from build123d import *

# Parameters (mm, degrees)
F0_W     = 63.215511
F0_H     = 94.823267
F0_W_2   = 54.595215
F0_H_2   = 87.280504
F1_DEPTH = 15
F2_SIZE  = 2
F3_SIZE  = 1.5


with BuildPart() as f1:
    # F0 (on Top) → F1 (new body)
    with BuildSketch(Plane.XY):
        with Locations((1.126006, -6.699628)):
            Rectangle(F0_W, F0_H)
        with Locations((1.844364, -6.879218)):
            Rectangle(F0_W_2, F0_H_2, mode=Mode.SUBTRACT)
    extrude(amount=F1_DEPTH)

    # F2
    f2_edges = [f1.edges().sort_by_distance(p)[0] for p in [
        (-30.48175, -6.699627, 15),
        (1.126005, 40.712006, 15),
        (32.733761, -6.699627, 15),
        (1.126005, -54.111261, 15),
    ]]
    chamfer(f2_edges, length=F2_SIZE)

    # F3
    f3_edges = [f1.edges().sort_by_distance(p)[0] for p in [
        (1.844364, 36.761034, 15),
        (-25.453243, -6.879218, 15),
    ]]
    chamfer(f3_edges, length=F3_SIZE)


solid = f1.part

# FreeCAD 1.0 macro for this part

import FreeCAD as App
import Part
import Sketcher


def edges_at(feature, points):
    """Names of the edges that pass closest to the given points."""
    edges = feature.Shape.Edges
    near = lambda p: min(range(len(edges)), key=lambda i: edges[i].distToShape(Part.Vertex(*p))[0])
    return sorted({f"Edge{near(p) + 1}" for p in points})


def add_polygon(sketch, points):
    """Adds a closed chain of lines whose ends are joined by coincident constraints."""
    first, n = sketch.GeometryCount, len(points)
    for a, b in zip(points, points[1:] + points[:1]):
        sketch.addGeometry(Part.LineSegment(App.Vector(*a, 0), App.Vector(*b, 0)), False)
    for i in range(n):
        sketch.addConstraint(Sketcher.Constraint("Coincident", first + i, 2, first + (i + 1) % n, 1))

doc = App.newDocument("Part")
body = doc.addObject("PartDesign::Body", "Body")

sketch1 = doc.addObject("Sketcher::SketchObject", "Sketch")
body.addObject(sketch1)
sketch1.AttachmentSupport = (doc.XY_Plane, [""])
sketch1.MapMode = "FlatFace"
add_polygon(sketch1, [(-30, 41), (-30, -54), (33, -54), (33, 41)])
add_polygon(sketch1, [(29, -51), (-25, -51), (-25, 37), (29, 37)])
sketch1.addConstraint(Sketcher.Constraint("Vertical", 0))
sketch1.addConstraint(Sketcher.Constraint("Horizontal", 1))
sketch1.addConstraint(Sketcher.Constraint("Vertical", 2))
sketch1.addConstraint(Sketcher.Constraint("Horizontal", 3))
sketch1.addConstraint(Sketcher.Constraint("Horizontal", 4))
sketch1.addConstraint(Sketcher.Constraint("Vertical", 5))
sketch1.addConstraint(Sketcher.Constraint("Horizontal", 6))
sketch1.addConstraint(Sketcher.Constraint("Vertical", 7))
sketch1.addConstraint(Sketcher.Constraint("DistanceX", 1, 1, 1, 2, 63.215511))
sketch1.addConstraint(Sketcher.Constraint("DistanceX", 4, 2, 4, 1, 54.595215))
sketch1.addConstraint(Sketcher.Constraint("DistanceY", 0, 2, 0, 1, 94.823267))
sketch1.addConstraint(Sketcher.Constraint("DistanceY", 5, 1, 5, 2, 87.280504))
sketch1.addConstraint(Sketcher.Constraint("DistanceX", 0, 2, -1, 1, 30.481749))
sketch1.addConstraint(Sketcher.Constraint("DistanceY", 0, 2, -1, 1, 54.111261))
sketch1.addConstraint(Sketcher.Constraint("DistanceY", 4, 2, -1, 1, 50.51947))
sketch1.addConstraint(Sketcher.Constraint("DistanceX", -1, 1, 6, 2, 29.141972))
pad1 = doc.addObject("PartDesign::Pad", "Pad")
body.addObject(pad1)
pad1.Profile = sketch1
pad1.Length = 15
doc.recompute()

chamfer = doc.addObject("PartDesign::Chamfer", "Chamfer")
body.addObject(chamfer)
chamfer.Base = (pad1, edges_at(pad1, [
    (-30.482, -6.7, 15),
    (1.126, 40.712, 15),
    (32.734, -6.7, 15),
    (1.126, -54.111, 15),
]))
chamfer.Size = 2
doc.recompute()

chamfer2 = doc.addObject("PartDesign::Chamfer", "Chamfer001")
body.addObject(chamfer2)
chamfer2.Base = (chamfer, edges_at(chamfer, [(1.844, 36.761, 15), (-25.453, -6.879, 15)]))
chamfer2.Size = 1.5

doc.recompute()
